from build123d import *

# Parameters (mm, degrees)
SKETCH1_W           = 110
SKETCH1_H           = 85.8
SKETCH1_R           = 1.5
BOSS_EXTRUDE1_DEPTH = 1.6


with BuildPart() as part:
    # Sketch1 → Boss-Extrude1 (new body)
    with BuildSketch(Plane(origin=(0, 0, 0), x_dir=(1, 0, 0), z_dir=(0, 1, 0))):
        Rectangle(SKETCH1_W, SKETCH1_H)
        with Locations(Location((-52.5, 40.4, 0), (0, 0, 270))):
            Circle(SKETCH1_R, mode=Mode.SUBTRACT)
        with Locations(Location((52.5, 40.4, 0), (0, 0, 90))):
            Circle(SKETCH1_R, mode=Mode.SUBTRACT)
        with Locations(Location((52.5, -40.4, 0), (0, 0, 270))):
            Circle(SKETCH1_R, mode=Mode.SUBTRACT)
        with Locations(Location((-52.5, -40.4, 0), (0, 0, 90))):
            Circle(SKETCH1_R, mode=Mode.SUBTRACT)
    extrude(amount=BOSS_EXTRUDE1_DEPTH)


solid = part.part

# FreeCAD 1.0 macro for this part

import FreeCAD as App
import Part
import Sketcher


def add_polygon(sketch, points):
    """Adds a closed chain of lines whose ends are joined by coincident constraints."""
    first, n = sketch.GeometryCount, len(points)
    for a, b in zip(points, points[1:] + points[:1]):
        sketch.addGeometry(Part.LineSegment(App.Vector(*a, 0), App.Vector(*b, 0)), False)
    for i in range(n):
        sketch.addConstraint(Sketcher.Constraint("Coincident", first + i, 2, first + (i + 1) % n, 1))

doc = App.newDocument("Part")
body = doc.addObject("PartDesign::Body", "Body")

# Sketch on XZ plane
sketch1 = body.newObject("Sketcher::SketchObject", "Sketch")
sketch1.AttachmentSupport = (doc.getObject("XZ_Plane"), [""])
sketch1.MapMode = "FlatFace"
add_polygon(sketch1, [(-55, -42.9), (-55, 42.9), (55, 42.9), (55, -42.9)])  # lines 0-3
sketch1.addGeometry(Part.Circle(App.Vector(-52.5, 40.4, 0), App.Vector(0, 0, 1), 1.5), False)  # 4
sketch1.addGeometry(Part.Circle(App.Vector(52.5, 40.4, 0), App.Vector(0, 0, 1), 1.5), False)  # 5
sketch1.addGeometry(Part.Circle(App.Vector(-52.5, -40.4, 0), App.Vector(0, 0, 1), 1.5), False)  # 6
sketch1.addGeometry(Part.Circle(App.Vector(52.5, -40.4, 0), App.Vector(0, 0, 1), 1.5), False)  # 7
sketch1.addConstraint([
    Sketcher.Constraint("Vertical", 0),
    Sketcher.Constraint("Horizontal", 1),
    Sketcher.Constraint("Vertical", 2),
    Sketcher.Constraint("Horizontal", 3),
    Sketcher.Constraint("Equal", 4, 5),
    Sketcher.Constraint("Equal", 5, 6),
    Sketcher.Constraint("Equal", 6, 7),
    Sketcher.Constraint("Symmetric", 5, 3, 6, 3, -1, 1),
    Sketcher.Constraint("Symmetric", 4, 3, 7, 3, -1, 1),
    Sketcher.Constraint("Symmetric", 0, 2, 2, 2, -1, 1),
    Sketcher.Constraint("Symmetric", 4, 3, 5, 3, -2),
    Sketcher.Constraint("Diameter", 4, 3.0),
    Sketcher.Constraint("DistanceX", 1, 1, 1, 2, 110.0),
    Sketcher.Constraint("DistanceY", 0, 1, 0, 2, 85.8),
    Sketcher.Constraint("DistanceX", 4, 3, 5, 3, 105.0),
    Sketcher.Constraint("DistanceY", -1, 1, 4, 3, 40.4),
])
pad1 = body.newObject("PartDesign::Pad", "Pad")
pad1.Profile = sketch1
pad1.Length = 1.6
pad1.Reversed = True

doc.recompute()
